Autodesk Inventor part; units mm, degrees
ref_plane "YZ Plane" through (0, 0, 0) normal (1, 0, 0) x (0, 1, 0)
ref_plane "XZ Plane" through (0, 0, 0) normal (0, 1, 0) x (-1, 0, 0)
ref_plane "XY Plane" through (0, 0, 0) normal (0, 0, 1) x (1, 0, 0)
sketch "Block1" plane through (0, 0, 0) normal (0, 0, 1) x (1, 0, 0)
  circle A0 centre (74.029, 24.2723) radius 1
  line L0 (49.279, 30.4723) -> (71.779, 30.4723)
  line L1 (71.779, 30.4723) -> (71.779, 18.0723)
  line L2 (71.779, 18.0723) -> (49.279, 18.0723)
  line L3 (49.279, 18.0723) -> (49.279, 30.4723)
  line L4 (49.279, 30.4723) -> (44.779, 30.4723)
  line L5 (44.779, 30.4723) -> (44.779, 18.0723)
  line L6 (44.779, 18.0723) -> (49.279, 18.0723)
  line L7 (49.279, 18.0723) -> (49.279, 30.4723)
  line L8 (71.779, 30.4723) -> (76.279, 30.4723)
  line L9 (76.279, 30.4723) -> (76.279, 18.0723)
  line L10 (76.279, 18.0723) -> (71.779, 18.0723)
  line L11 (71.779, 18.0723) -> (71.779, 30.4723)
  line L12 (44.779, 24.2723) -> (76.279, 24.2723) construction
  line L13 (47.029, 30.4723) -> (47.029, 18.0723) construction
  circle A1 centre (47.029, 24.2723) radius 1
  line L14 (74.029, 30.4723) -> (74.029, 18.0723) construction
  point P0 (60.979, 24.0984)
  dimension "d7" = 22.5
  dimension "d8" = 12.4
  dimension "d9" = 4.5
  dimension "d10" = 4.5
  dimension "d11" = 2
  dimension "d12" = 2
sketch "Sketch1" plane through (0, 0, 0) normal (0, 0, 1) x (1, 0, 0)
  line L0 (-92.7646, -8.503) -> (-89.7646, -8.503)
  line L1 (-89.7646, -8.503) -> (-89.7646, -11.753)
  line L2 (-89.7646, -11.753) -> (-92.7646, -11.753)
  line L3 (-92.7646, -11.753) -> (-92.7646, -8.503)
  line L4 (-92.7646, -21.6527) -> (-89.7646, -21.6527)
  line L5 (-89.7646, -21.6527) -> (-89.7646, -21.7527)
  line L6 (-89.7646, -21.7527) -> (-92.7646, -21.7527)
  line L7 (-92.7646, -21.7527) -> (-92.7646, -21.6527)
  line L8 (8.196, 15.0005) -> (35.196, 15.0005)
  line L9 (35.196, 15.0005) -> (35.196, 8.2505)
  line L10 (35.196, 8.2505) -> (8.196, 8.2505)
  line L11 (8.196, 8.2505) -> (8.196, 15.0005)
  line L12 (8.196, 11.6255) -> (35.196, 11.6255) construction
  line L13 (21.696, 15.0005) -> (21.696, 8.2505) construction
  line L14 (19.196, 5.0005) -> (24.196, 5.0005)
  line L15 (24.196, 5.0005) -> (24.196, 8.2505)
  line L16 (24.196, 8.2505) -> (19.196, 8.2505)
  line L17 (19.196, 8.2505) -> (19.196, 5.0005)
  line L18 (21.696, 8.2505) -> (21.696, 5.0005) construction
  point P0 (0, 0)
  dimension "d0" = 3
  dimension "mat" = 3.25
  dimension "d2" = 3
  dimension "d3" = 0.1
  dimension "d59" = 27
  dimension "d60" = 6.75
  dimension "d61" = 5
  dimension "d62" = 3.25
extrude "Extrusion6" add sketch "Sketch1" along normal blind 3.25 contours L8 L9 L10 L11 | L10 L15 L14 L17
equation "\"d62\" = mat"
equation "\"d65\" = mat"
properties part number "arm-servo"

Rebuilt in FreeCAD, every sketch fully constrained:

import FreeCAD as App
import Part
import Sketcher


def add_polygon(sketch, points):
    """Adds a closed chain of lines whose ends are joined by coincident constraints."""
    first, n = sketch.GeometryCount, len(points)
    for a, b in zip(points, points[1:] + points[:1]):
        sketch.addGeometry(Part.LineSegment(App.Vector(*a, 0), App.Vector(*b, 0)), False)
    for i in range(n):
        sketch.addConstraint(Sketcher.Constraint("Coincident", first + i, 2, first + (i + 1) % n, 1))

doc = App.newDocument("Part")
body = doc.addObject("PartDesign::Body", "Body")

sketch1 = body.newObject("Sketcher::SketchObject", "Sketch")
sketch1.AttachmentSupport = (doc.getObject("XY_Plane"), [""])
sketch1.MapMode = "FlatFace"
add_polygon(sketch1, [(35.2, 15), (8.2, 15), (8.2, 8.3), (19.2, 8.3), (19.2, 5), (24.2, 5), (24.2, 8.3), (35.2, 8.3)])
sketch1.addConstraint(Sketcher.Constraint("Horizontal", 0))
sketch1.addConstraint(Sketcher.Constraint("Vertical", 1))
sketch1.addConstraint(Sketcher.Constraint("Horizontal", 2))
sketch1.addConstraint(Sketcher.Constraint("Vertical", 3))
sketch1.addConstraint(Sketcher.Constraint("Horizontal", 4))
sketch1.addConstraint(Sketcher.Constraint("Vertical", 5))
sketch1.addConstraint(Sketcher.Constraint("Horizontal", 6))
sketch1.addConstraint(Sketcher.Constraint("Vertical", 7))
sketch1.addConstraint(Sketcher.Constraint("Horizontal", 2, 2, 5, 2))
sketch1.addConstraint(Sketcher.Constraint("Equal", 2, 6))
sketch1.addConstraint(Sketcher.Constraint("DistanceX", 0, 2, 0, 1, 27.0))
sketch1.addConstraint(Sketcher.Constraint("DistanceX", 4, 1, 4, 2, 5.0))
sketch1.addConstraint(Sketcher.Constraint("DistanceY", 1, 2, 1, 1, 6.75))
sketch1.addConstraint(Sketcher.Constraint("DistanceY", 3, 2, 3, 1, 3.25))
sketch1.addConstraint(Sketcher.Constraint("DistanceY", -1, 1, 3, 2, 5.0005))
sketch1.addConstraint(Sketcher.Constraint("DistanceX", -1, 1, 0, 2, 8.196))
pad1 = body.newObject("PartDesign::Pad", "Pad")
pad1.Profile = sketch1
pad1.Length = 3.25

doc.recompute()
